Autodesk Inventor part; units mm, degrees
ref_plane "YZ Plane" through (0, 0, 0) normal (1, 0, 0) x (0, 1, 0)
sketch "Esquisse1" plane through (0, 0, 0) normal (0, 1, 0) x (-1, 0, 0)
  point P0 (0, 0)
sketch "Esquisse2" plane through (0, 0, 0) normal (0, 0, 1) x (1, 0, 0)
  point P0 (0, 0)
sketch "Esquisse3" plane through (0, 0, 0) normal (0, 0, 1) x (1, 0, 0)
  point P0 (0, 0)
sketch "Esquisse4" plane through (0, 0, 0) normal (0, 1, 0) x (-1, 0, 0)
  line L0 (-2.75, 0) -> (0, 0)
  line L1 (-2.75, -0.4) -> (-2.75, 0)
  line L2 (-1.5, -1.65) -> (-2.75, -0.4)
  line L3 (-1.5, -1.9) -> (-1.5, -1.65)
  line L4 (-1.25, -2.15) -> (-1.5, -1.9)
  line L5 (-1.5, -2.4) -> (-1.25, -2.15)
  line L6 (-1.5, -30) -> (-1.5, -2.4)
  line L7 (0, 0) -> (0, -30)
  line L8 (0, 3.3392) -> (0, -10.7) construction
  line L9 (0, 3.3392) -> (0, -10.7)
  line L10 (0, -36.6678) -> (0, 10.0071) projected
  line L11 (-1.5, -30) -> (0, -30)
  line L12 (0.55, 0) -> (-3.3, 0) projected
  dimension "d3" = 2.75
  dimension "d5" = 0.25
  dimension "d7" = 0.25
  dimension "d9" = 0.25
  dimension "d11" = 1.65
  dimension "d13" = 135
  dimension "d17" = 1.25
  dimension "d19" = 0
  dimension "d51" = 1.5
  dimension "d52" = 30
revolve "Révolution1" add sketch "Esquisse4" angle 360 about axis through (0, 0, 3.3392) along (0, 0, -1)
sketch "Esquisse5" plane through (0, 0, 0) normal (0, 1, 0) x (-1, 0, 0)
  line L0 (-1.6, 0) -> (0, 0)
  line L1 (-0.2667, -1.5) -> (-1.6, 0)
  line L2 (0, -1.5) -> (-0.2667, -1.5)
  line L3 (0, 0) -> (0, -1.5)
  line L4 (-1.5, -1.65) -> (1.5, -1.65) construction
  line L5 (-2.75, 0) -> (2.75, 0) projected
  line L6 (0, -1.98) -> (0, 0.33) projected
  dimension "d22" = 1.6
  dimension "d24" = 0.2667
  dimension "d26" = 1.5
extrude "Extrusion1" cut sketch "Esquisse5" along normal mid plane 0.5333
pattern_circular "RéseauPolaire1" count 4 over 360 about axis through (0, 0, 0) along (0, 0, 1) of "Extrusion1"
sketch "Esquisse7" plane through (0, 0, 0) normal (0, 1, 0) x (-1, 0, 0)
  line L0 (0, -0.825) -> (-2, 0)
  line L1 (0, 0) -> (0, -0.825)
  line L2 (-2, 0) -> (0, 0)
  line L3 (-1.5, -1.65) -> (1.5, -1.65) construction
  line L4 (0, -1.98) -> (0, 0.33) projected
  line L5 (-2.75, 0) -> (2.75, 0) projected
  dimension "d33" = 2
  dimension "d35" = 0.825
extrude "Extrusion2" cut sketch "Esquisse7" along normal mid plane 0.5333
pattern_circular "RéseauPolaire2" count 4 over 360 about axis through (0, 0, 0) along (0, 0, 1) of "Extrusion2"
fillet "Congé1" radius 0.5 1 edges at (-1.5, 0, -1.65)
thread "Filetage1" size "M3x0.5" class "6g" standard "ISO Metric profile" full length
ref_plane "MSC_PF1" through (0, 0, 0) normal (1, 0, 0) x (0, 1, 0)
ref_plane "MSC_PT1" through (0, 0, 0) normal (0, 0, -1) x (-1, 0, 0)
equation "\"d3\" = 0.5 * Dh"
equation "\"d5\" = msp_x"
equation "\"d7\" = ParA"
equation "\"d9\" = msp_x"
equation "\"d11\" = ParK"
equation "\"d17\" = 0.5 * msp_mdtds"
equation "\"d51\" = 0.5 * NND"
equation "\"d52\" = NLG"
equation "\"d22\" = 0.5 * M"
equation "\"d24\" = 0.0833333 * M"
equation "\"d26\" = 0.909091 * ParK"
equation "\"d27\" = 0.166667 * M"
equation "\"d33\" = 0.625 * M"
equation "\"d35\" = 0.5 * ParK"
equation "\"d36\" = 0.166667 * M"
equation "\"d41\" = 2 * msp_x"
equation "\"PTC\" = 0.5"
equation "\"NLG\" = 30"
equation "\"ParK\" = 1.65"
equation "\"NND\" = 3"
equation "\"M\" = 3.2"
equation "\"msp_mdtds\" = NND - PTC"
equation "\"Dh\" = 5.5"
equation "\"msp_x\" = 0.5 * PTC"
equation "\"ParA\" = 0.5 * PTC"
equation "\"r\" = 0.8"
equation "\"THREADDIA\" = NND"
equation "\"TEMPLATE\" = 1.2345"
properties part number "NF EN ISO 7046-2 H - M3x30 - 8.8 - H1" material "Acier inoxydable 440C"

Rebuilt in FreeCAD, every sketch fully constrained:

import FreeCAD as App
import Part
import Sketcher


def edges_at(feature, points):
    """Names of the edges that pass closest to the given points."""
    edges = feature.Shape.Edges
    near = lambda p: min(range(len(edges)), key=lambda i: edges[i].distToShape(Part.Vertex(*p))[0])
    return sorted({f"Edge{near(p) + 1}" for p in points})

doc = App.newDocument("Part")
body = doc.addObject("PartDesign::Body", "Body")

# Sketch on XZ plane
sketch1 = body.newObject("Sketcher::SketchObject", "Sketch")
sketch1.AttachmentSupport = (doc.getObject("XZ_Plane"), [""])
sketch1.MapMode = "FlatFace"
sketch1.addGeometry([
    Part.LineSegment(App.Vector(0, 0, 0), App.Vector(2.75, 0, 0)),  # 0
    Part.LineSegment(App.Vector(2.75, 0, 0), App.Vector(2.75, -0.4, 0)),  # 1
    Part.LineSegment(App.Vector(2.75, -0.4, 0), App.Vector(1.5, -1.65, 0)),  # 2
    Part.LineSegment(App.Vector(1.5, -1.65, 0), App.Vector(1.5, -1.9, 0)),  # 3
    Part.LineSegment(App.Vector(1.5, -1.9, 0), App.Vector(1.25, -2.15, 0)),  # 4
    Part.LineSegment(App.Vector(1.25, -2.15, 0), App.Vector(1.5, -2.4, 0)),  # 5
    Part.LineSegment(App.Vector(1.5, -2.4, 0), App.Vector(1.5, -30, 0)),  # 6
    Part.LineSegment(App.Vector(1.5, -30, 0), App.Vector(0, -30, 0)),  # 7
    Part.LineSegment(App.Vector(0, -30, 0), App.Vector(0, 0, 0)),  # 8
], False)
sketch1.addConstraint([
    Sketcher.Constraint("Coincident", 0, 2, 1, 1),
    Sketcher.Constraint("Coincident", 1, 2, 2, 1),
    Sketcher.Constraint("Coincident", 2, 2, 3, 1),
    Sketcher.Constraint("Coincident", 3, 2, 4, 1),
    Sketcher.Constraint("Coincident", 4, 2, 5, 1),
    Sketcher.Constraint("Coincident", 5, 2, 6, 1),
    Sketcher.Constraint("Coincident", 6, 2, 7, 1),
    Sketcher.Constraint("Coincident", 7, 2, 8, 1),
    Sketcher.Constraint("Coincident", 8, 2, 0, 1),
    Sketcher.Constraint("Horizontal", 0),
    Sketcher.Constraint("Vertical", 1),
    Sketcher.Constraint("Vertical", 3),
    Sketcher.Constraint("Vertical", 6),
    Sketcher.Constraint("Horizontal", 7),
    Sketcher.Constraint("Vertical", 8),
    Sketcher.Constraint("Coincident", 8, 2, -1, 1),
    Sketcher.Constraint("Parallel", 2, 4),
    Sketcher.Constraint("Perpendicular", 4, 5),
    Sketcher.Constraint("Vertical", 3, 2, 5, 2),
    Sketcher.Constraint("Equal", 4, 5),
    Sketcher.Constraint("DistanceY", 8, 1, 8, 2, 30.0),
    Sketcher.Constraint("DistanceX", 7, 2, 7, 1, 1.5),
    Sketcher.Constraint("DistanceX", 0, 1, 0, 2, 2.75),
    Sketcher.Constraint("DistanceY", 3, 2, 3, 1, 0.25),
    Sketcher.Constraint("DistanceX", 4, 2, 1, 2, 1.5),
    Sketcher.Constraint("DistanceY", 2, 2, -1, 1, 1.65),
])
revolution = body.newObject("PartDesign::Revolution", "Revolution")
revolution.Profile = sketch1
revolution.ReferenceAxis = (sketch1, ["V_Axis"])
revolution.Angle = 360

# Sketch on XZ plane
sketch2 = body.newObject("Sketcher::SketchObject", "Sketch001")
sketch2.AttachmentSupport = (doc.getObject("XZ_Plane"), [""])
sketch2.MapMode = "FlatFace"
sketch2.addGeometry([
    Part.LineSegment(App.Vector(0, 0, 0), App.Vector(1.6, 0, 0)),
    Part.LineSegment(App.Vector(1.6, 0, 0), App.Vector(0.27, -1.5, 0)),
    Part.LineSegment(App.Vector(0.27, -1.5, 0), App.Vector(0, -1.5, 0)),
    Part.LineSegment(App.Vector(0, -1.5, 0), App.Vector(0, 0, 0)),
], False)
sketch2.addConstraint([
    Sketcher.Constraint("Coincident", 0, 2, 1, 1),
    Sketcher.Constraint("Coincident", 1, 2, 2, 1),
    Sketcher.Constraint("Coincident", 2, 2, 3, 1),
    Sketcher.Constraint("Coincident", 3, 2, 0, 1),
    Sketcher.Constraint("Horizontal", 0),
    Sketcher.Constraint("Horizontal", 2),
    Sketcher.Constraint("Vertical", 3),
    Sketcher.Constraint("Coincident", 3, 2, -1, 1),
    Sketcher.Constraint("DistanceX", 0, 1, 0, 2, 1.6),
    Sketcher.Constraint("DistanceY", 3, 1, 3, 2, 1.5),
    Sketcher.Constraint("DistanceX", 2, 2, 2, 1, 0.2667),
])
pocket1 = body.newObject("PartDesign::Pocket", "Pocket")
pocket1.Profile = sketch2
pocket1.Length = 0.5333
pocket1.Midplane = True
doc.recompute()

polarpattern = body.newObject("PartDesign::PolarPattern", "PolarPattern")
polarpattern.Originals = [pocket1]
polarpattern.Axis = (doc.getObject("Z_Axis"), [""])
polarpattern.Angle = 360
polarpattern.Occurrences = 4
body.Tip = polarpattern

# Sketch on XZ plane
sketch3 = body.newObject("Sketcher::SketchObject", "Sketch002")
sketch3.AttachmentSupport = (doc.getObject("XZ_Plane"), [""])
sketch3.MapMode = "FlatFace"
sketch3.addGeometry([
    Part.LineSegment(App.Vector(2, 0, 0), App.Vector(0, -0.8, 0)),
    Part.LineSegment(App.Vector(0, -0.8, 0), App.Vector(0, 0, 0)),
    Part.LineSegment(App.Vector(0, 0, 0), App.Vector(2, 0, 0)),
], False)
sketch3.addConstraint([
    Sketcher.Constraint("Coincident", 0, 2, 1, 1),
    Sketcher.Constraint("Coincident", 1, 2, 2, 1),
    Sketcher.Constraint("Coincident", 2, 2, 0, 1),
    Sketcher.Constraint("Vertical", 1),
    Sketcher.Constraint("Horizontal", 2),
    Sketcher.Constraint("Coincident", 1, 2, -1, 1),
    Sketcher.Constraint("DistanceX", 2, 1, 2, 2, 2.0),
    Sketcher.Constraint("DistanceY", 1, 1, 1, 2, 0.825),
])
pocket2 = body.newObject("PartDesign::Pocket", "Pocket001")
pocket2.Profile = sketch3
pocket2.Length = 0.5333
pocket2.Midplane = True
doc.recompute()

polarpattern2 = body.newObject("PartDesign::PolarPattern", "PolarPattern001")
polarpattern2.Originals = [pocket2]
polarpattern2.Axis = (doc.getObject("Z_Axis"), [""])
polarpattern2.Angle = 360
polarpattern2.Occurrences = 4
body.Tip = polarpattern2
doc.recompute()

fillet = body.newObject("PartDesign::Fillet", "Fillet")
fillet.Base = (polarpattern2, edges_at(polarpattern2, [(-1.5, 0, -1.65)]))
fillet.Radius = 0.5

doc.recompute()
